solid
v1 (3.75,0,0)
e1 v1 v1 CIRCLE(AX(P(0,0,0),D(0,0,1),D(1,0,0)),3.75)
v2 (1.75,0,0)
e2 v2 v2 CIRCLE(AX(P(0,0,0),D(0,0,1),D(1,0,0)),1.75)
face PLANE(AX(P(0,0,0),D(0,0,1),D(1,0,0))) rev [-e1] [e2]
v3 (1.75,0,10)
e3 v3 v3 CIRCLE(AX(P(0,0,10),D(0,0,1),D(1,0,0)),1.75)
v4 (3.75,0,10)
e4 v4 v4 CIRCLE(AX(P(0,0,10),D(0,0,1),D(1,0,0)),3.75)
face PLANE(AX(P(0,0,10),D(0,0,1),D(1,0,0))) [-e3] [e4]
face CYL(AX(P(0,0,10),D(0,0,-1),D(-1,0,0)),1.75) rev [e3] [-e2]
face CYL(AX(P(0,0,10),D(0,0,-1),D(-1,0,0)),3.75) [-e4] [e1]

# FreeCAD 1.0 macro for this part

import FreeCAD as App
import Part
import Sketcher

V = App.Vector

doc = App.newDocument("Part")
body = doc.addObject("PartDesign::Body", "Body")

# Sketch on XY plane
sketch1 = body.newObject("Sketcher::SketchObject", "Sketch")
sketch1.AttachmentSupport = (doc.getObject("XY_Plane"), [""])
sketch1.MapMode = "FlatFace"
sketch1.addGeometry([
    Part.Circle(V(0, 0, 0), V(0, 0, 1), 3.8),
    Part.Circle(V(0, 0, 0), V(0, 0, 1), 1.8),
], False)
sketch1.addConstraint([
    Sketcher.Constraint("Coincident", 0, 3, -1, 1),
    Sketcher.Constraint("Coincident", 1, 3, -1, 1),
    Sketcher.Constraint("Diameter", 0, 7.5),
    Sketcher.Constraint("Diameter", 1, 3.5),
])
pad1 = body.newObject("PartDesign::Pad", "Pad")
pad1.Profile = sketch1
pad1.Length = 10

doc.recompute()
